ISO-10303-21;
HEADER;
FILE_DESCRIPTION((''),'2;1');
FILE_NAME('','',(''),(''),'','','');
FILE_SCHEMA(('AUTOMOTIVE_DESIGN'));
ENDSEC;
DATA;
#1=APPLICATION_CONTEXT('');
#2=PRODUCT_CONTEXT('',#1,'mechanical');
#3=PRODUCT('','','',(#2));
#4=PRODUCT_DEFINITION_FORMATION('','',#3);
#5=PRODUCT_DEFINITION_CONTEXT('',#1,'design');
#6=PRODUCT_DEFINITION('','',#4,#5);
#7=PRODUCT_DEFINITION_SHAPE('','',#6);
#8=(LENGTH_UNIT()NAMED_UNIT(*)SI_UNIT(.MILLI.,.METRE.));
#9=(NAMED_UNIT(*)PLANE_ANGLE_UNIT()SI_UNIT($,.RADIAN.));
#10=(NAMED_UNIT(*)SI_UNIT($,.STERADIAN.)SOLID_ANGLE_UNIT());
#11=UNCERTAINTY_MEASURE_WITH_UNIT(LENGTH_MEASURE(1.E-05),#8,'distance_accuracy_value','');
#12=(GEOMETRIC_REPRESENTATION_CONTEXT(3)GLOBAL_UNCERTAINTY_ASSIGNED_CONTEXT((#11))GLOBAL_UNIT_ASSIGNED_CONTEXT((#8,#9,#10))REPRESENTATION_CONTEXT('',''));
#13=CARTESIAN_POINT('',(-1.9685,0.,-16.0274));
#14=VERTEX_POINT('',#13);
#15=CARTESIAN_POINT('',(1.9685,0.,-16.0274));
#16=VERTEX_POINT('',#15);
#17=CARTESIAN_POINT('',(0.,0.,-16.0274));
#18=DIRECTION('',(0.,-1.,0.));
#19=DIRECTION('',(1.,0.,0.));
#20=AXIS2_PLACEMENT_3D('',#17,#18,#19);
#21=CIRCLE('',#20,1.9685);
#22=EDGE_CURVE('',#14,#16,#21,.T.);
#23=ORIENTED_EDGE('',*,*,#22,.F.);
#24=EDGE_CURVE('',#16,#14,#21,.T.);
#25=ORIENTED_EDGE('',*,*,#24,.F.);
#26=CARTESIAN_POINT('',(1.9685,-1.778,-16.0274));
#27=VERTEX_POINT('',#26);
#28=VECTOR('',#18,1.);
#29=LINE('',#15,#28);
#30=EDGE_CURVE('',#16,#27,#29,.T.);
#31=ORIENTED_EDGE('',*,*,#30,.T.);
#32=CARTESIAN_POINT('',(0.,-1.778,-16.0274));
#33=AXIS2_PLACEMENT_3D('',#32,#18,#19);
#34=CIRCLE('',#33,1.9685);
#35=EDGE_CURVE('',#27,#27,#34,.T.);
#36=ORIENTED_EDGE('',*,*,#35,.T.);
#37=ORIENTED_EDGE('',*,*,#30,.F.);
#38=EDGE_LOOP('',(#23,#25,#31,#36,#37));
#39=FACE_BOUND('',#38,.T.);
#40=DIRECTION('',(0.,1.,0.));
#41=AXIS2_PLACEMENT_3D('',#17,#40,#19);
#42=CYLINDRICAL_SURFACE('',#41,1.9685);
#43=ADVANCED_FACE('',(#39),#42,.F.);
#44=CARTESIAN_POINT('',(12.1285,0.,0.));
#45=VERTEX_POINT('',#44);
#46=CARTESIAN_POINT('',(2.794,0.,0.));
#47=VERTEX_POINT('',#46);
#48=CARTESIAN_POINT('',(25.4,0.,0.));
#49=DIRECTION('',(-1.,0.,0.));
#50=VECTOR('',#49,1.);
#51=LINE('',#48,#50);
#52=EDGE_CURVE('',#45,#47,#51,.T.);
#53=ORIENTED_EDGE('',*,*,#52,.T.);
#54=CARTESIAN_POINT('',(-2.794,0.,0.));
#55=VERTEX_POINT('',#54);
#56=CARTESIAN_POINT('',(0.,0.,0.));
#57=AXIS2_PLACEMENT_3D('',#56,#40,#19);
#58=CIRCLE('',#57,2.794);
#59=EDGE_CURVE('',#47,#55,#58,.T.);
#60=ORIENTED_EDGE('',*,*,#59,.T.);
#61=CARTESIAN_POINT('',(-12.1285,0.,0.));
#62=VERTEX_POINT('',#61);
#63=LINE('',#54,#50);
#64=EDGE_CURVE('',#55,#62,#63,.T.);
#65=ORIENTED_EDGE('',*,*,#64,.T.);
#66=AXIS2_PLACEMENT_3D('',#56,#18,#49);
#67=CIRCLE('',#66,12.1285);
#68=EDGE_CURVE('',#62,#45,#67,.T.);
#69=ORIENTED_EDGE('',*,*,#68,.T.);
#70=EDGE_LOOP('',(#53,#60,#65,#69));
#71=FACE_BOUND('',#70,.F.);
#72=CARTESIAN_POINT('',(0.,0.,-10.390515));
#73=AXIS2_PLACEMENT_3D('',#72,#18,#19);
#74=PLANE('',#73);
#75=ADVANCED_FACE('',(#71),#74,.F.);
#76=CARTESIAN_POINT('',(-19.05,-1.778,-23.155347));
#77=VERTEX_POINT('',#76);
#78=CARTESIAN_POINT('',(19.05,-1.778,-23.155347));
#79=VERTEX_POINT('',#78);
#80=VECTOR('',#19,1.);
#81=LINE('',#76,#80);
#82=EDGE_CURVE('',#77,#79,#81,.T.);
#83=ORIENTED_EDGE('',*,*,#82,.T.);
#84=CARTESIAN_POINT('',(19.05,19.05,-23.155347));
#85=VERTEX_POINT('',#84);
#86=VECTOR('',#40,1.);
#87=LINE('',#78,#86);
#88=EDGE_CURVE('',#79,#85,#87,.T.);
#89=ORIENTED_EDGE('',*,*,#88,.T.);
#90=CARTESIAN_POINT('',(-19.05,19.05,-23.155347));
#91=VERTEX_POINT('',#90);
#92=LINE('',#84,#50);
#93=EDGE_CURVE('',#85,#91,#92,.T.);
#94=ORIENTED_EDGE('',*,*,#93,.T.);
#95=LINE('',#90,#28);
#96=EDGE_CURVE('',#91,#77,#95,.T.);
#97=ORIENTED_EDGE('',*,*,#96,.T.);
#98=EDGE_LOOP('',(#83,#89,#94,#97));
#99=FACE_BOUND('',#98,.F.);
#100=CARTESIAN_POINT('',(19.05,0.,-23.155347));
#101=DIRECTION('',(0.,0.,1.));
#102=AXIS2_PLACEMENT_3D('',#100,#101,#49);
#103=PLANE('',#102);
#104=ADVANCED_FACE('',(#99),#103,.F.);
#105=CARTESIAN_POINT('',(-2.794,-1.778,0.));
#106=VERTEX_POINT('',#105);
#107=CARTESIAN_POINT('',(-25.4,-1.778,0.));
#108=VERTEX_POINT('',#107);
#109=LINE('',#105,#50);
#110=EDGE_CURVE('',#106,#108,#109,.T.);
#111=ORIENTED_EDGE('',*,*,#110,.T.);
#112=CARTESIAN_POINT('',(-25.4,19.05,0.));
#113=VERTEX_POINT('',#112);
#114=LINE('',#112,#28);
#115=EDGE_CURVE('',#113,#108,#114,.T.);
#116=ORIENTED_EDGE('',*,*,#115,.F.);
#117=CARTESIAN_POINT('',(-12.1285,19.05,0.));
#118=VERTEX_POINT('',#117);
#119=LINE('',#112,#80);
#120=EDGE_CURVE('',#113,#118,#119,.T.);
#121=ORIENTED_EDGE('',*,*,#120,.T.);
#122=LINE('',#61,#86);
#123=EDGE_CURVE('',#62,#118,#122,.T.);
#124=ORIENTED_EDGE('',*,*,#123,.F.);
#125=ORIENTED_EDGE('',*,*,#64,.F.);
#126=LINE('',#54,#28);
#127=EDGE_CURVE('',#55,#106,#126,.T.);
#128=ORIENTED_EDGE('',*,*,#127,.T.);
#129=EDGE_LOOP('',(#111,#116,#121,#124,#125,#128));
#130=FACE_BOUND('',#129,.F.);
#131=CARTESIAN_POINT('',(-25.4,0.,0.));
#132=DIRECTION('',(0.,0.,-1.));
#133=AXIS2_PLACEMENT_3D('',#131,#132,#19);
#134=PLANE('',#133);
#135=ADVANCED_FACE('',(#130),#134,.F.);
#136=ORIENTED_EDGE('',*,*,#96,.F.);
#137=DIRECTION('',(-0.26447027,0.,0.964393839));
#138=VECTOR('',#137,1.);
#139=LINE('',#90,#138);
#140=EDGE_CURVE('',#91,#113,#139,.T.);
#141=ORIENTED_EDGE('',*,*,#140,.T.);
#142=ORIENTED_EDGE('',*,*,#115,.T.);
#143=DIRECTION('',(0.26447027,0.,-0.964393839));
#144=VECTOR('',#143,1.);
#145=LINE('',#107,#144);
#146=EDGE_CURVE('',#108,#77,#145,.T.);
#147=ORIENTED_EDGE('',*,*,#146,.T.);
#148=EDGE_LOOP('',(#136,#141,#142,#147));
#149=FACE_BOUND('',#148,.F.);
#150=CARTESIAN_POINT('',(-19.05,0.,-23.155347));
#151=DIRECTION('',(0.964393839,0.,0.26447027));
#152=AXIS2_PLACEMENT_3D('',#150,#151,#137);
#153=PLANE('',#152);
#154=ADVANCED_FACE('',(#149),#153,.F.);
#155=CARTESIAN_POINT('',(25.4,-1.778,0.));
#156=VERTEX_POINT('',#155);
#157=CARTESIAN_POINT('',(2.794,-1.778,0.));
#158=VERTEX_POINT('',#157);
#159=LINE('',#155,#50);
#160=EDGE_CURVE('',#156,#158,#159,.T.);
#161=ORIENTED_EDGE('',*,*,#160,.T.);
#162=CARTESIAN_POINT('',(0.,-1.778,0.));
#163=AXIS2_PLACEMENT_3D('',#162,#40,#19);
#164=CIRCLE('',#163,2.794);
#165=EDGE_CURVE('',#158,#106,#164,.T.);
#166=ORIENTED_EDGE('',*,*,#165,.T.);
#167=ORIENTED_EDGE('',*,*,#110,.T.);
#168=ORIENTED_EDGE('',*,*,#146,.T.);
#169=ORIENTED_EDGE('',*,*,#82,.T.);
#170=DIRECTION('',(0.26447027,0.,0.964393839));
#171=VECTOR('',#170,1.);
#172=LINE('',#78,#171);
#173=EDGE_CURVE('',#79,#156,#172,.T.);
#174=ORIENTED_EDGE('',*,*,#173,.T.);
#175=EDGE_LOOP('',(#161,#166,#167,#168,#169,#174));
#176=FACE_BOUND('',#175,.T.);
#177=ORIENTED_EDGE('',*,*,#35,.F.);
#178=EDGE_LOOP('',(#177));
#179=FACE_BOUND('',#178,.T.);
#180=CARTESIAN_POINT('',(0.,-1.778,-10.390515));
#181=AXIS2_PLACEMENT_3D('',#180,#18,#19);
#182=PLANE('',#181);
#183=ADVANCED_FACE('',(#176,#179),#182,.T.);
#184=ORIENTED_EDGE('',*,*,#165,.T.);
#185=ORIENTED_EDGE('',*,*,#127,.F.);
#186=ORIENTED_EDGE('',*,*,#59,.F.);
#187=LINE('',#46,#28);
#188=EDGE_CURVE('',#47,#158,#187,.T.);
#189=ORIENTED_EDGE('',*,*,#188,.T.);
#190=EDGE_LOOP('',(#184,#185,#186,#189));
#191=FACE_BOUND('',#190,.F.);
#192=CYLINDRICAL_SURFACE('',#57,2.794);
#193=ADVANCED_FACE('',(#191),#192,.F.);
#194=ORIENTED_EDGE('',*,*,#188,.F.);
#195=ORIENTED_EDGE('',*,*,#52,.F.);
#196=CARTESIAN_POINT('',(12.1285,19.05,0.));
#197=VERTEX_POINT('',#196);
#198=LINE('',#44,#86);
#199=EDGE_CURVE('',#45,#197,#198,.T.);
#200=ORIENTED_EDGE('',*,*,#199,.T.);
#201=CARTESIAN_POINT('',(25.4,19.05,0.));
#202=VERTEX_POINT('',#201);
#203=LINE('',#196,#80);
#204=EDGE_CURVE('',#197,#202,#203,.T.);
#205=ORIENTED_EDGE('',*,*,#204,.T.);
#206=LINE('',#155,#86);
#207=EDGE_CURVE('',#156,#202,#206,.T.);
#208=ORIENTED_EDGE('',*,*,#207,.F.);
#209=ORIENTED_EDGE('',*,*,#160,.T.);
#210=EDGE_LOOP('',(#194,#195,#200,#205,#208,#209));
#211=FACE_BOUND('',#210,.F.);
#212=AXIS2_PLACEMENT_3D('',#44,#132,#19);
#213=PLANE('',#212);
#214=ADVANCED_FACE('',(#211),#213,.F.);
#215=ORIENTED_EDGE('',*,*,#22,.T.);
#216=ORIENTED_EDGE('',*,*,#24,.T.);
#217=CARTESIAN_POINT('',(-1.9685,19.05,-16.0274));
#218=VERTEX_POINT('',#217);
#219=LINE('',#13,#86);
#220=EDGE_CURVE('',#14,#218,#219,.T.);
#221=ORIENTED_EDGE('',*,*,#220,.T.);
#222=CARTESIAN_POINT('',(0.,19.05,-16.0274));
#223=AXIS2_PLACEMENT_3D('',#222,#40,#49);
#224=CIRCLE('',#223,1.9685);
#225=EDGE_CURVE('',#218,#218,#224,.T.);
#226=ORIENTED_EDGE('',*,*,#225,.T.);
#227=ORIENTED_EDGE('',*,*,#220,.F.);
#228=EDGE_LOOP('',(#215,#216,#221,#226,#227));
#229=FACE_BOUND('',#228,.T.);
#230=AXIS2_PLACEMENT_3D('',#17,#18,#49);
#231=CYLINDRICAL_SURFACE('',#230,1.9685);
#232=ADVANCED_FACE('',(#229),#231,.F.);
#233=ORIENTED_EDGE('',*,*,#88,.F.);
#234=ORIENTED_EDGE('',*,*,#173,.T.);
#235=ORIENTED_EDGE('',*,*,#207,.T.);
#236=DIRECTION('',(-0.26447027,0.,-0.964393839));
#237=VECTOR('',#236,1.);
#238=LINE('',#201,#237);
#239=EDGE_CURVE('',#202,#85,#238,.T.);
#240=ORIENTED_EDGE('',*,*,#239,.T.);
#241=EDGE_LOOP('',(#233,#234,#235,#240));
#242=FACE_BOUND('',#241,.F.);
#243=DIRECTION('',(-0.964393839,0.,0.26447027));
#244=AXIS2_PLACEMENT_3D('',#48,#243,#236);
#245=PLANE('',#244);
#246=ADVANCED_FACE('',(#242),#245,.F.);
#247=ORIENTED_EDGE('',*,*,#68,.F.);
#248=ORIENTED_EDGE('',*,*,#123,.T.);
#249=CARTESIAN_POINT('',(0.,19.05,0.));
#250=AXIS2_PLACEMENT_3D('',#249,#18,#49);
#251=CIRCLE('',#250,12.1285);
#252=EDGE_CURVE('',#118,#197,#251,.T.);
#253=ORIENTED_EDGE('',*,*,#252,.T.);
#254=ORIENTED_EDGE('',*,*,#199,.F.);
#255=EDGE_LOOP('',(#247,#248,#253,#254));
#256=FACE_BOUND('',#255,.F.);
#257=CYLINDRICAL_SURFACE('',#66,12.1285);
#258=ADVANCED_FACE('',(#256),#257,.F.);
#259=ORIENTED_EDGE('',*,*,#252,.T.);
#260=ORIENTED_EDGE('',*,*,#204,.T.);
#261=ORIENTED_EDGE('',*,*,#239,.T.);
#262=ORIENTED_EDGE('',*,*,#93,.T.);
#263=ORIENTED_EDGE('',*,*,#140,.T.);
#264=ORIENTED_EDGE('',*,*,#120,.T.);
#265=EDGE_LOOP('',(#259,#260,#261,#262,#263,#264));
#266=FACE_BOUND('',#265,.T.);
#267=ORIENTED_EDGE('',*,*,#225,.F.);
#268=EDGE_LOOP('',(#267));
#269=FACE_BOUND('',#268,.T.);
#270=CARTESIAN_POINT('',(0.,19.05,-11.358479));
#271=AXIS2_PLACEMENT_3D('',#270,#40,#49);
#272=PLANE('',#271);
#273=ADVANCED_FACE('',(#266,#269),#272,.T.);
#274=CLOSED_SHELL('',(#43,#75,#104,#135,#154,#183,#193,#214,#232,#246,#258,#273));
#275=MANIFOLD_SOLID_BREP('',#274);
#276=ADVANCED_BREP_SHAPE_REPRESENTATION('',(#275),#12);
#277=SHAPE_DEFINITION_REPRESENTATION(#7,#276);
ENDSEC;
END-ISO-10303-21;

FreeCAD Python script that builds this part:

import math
import FreeCAD as App
import Part
import Sketcher
from FreeCAD import Vector
Q = App.Units.Quantity

doc = App.newDocument("Part")
body = doc.addObject("PartDesign::Body", "Body")

# Sketch on XZ plane
sketch1 = doc.addObject("Sketcher::SketchObject", "Sketch")
body.addObject(sketch1)
sketch1.AttachmentSupport = (doc.XZ_Plane, [""])
sketch1.MapMode = "FlatFace"
sketch1.addGeometry(Part.ArcOfCircle(Part.Circle(Vector(0, 0, 0), Vector(0, 0, 1), 2.794), math.radians(180), math.radians(360)), False)
sketch1.addGeometry(Part.LineSegment(Vector(-2.794, 0, 0), Vector(-25.4, 0, 0)), False)
sketch1.addGeometry(Part.LineSegment(Vector(-25.4, 0, 0), Vector(-19.05, -23.155347, 0)), False)
sketch1.addGeometry(Part.LineSegment(Vector(-19.05, -23.155347, 0), Vector(19.05, -23.155347, 0)), False)
sketch1.addGeometry(Part.LineSegment(Vector(19.05, -23.155347, 0), Vector(25.4, 0, 0)), False)
sketch1.addGeometry(Part.LineSegment(Vector(25.4, 0, 0), Vector(2.794, 0, 0)), False)
sketch1.addGeometry(Part.Circle(Vector(0, -16.0274, 0), Vector(0, 0, 1), 1.9685), False)
sketch1.addConstraint(Sketcher.Constraint("Coincident", 0, 1, 1, 1))
sketch1.addConstraint(Sketcher.Constraint("Coincident", 1, 2, 2, 1))
sketch1.addConstraint(Sketcher.Constraint("Coincident", 2, 2, 3, 1))
sketch1.addConstraint(Sketcher.Constraint("Coincident", 3, 2, 4, 1))
sketch1.addConstraint(Sketcher.Constraint("Coincident", 4, 2, 5, 1))
sketch1.addConstraint(Sketcher.Constraint("Coincident", 5, 2, 0, 2))
sketch1.addConstraint(Sketcher.Constraint("Horizontal", 1))
sketch1.addConstraint(Sketcher.Constraint("Horizontal", 3))
sketch1.addConstraint(Sketcher.Constraint("Horizontal", 5))
sketch1.addConstraint(Sketcher.Constraint("Coincident", 0, 3, -1, 1))
sketch1.addConstraint(Sketcher.Constraint("Symmetric", 1, 2, 4, 2, -1, 1))
sketch1.addConstraint(Sketcher.Constraint("PointOnObject", 6, 3, -2))
sketch1.addConstraint(Sketcher.Constraint("PointOnObject", 0, 1, -1))
sketch1.addConstraint(Sketcher.Constraint("Equal", 2, 4))
sketch1.addConstraint(Sketcher.Constraint("Radius", 0, Q("0.11 in")))
sketch1.addConstraint(Sketcher.Constraint("Diameter", 6, Q("0.155 in")))
sketch1.addConstraint(Sketcher.Constraint("DistanceX", 3, 1, 3, 2, Q("1.5 in")))
sketch1.addConstraint(Sketcher.Constraint("DistanceX", 1, 2, -1, 1, Q("1 in")))
sketch1.addConstraint(Sketcher.Constraint("DistanceY", 6, 3, -1, 1, Q("0.631 in")))
sketch1.addConstraint(Sketcher.Constraint("Distance", 2, 24.01026))
pad1 = doc.addObject("PartDesign::Pad", "Pad")
body.addObject(pad1)
pad1.Profile = sketch1
pad1.Length = Q("0.07 in")

# Sketch on XZ plane
sketch2 = doc.addObject("Sketcher::SketchObject", "Sketch001")
body.addObject(sketch2)
sketch2.AttachmentSupport = (doc.XZ_Plane, [""])
sketch2.MapMode = "FlatFace"
sketch2.addGeometry(Part.ArcOfCircle(Part.Circle(Vector(0, 0, 0), Vector(0, 0, 1), 12.1285), math.radians(180), math.radians(360)), False)
sketch2.addGeometry(Part.LineSegment(Vector(12.1285, 0, 0), Vector(25.4, 0, 0)), False)
sketch2.addGeometry(Part.LineSegment(Vector(25.4, 0, 0), Vector(19.05, -23.155347, 0)), False)
sketch2.addGeometry(Part.LineSegment(Vector(19.05, -23.155347, 0), Vector(-19.05, -23.155347, 0)), False)
sketch2.addGeometry(Part.LineSegment(Vector(-19.05, -23.155347, 0), Vector(-25.4, 0, 0)), False)
sketch2.addGeometry(Part.LineSegment(Vector(-25.4, 0, 0), Vector(-12.1285, 0, 0)), False)
sketch2.addGeometry(Part.Circle(Vector(0, -16.0274, 0), Vector(0, 0, 1), 1.9685), False)
sketch2.addConstraint(Sketcher.Constraint("Coincident", 0, 2, 1, 1))
sketch2.addConstraint(Sketcher.Constraint("Coincident", 1, 2, 2, 1))
sketch2.addConstraint(Sketcher.Constraint("Coincident", 2, 2, 3, 1))
sketch2.addConstraint(Sketcher.Constraint("Coincident", 3, 2, 4, 1))
sketch2.addConstraint(Sketcher.Constraint("Coincident", 4, 2, 5, 1))
sketch2.addConstraint(Sketcher.Constraint("Coincident", 5, 2, 0, 1))
sketch2.addConstraint(Sketcher.Constraint("Horizontal", 1))
sketch2.addConstraint(Sketcher.Constraint("Horizontal", 3))
sketch2.addConstraint(Sketcher.Constraint("Horizontal", 5))
sketch2.addConstraint(Sketcher.Constraint("Coincident", 0, 3, -1, 1))
sketch2.addConstraint(Sketcher.Constraint("Symmetric", 1, 2, 4, 2, -1, 1))
sketch2.addConstraint(Sketcher.Constraint("PointOnObject", 6, 3, -2))
sketch2.addConstraint(Sketcher.Constraint("PointOnObject", 0, 2, -1))
sketch2.addConstraint(Sketcher.Constraint("Equal", 2, 4))
sketch2.addConstraint(Sketcher.Constraint("Diameter", 6, Q("0.155 in")))
sketch2.addConstraint(Sketcher.Constraint("DistanceX", 3, 2, 3, 1, Q("1.5 in")))
sketch2.addConstraint(Sketcher.Constraint("DistanceX", -1, 1, 1, 2, Q("1 in")))
sketch2.addConstraint(Sketcher.Constraint("Radius", 0, Q("0.4775 in")))
sketch2.addConstraint(Sketcher.Constraint("DistanceY", 6, 3, -1, 1, Q("0.631 in")))
sketch2.addConstraint(Sketcher.Constraint("Distance", 2, 24.01026))
pad2 = doc.addObject("PartDesign::Pad", "Pad001")
body.addObject(pad2)
pad2.Profile = sketch2
pad2.Length = Q("0.75 in")
pad2.Reversed = True

doc.recompute()
